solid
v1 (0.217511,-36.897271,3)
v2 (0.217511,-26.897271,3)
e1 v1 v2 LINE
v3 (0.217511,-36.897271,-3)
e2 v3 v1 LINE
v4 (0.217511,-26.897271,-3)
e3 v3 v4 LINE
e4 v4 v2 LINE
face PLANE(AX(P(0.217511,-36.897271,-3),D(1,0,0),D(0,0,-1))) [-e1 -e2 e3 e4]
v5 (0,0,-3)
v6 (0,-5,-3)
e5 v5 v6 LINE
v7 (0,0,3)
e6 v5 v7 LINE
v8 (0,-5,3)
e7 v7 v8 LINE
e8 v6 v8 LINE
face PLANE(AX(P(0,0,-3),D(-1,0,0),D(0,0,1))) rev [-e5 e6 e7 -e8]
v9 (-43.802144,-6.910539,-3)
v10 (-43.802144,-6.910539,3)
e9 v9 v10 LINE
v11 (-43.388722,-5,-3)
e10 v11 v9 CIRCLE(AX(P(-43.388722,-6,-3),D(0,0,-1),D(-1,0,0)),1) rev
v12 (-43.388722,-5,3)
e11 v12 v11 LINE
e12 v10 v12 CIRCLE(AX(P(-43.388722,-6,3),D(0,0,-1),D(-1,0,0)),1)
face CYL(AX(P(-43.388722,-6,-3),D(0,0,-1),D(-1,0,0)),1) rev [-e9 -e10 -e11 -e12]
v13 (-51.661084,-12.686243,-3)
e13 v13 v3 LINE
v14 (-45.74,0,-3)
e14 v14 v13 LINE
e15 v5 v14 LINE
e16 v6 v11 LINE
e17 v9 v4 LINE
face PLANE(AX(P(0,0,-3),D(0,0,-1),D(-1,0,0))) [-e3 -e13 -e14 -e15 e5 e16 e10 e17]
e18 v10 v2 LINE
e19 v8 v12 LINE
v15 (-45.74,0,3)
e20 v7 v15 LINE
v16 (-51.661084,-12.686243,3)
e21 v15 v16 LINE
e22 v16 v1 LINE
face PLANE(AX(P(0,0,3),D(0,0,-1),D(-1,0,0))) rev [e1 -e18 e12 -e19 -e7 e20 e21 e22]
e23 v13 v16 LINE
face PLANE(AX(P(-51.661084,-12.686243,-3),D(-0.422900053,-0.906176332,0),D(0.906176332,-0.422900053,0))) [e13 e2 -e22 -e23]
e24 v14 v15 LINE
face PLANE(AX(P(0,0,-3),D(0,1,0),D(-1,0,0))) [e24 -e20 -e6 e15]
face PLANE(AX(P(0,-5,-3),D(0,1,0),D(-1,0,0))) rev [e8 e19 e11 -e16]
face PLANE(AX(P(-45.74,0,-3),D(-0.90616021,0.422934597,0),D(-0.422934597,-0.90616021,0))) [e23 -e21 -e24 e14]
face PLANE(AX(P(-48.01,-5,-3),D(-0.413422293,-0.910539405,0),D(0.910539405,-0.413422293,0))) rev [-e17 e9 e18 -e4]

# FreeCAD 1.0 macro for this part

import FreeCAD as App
import Part
import Sketcher
Q = App.Units.Quantity


def edges_at(feature, points):
    """Names of the edges that pass closest to the given points."""
    edges = feature.Shape.Edges
    near = lambda p: min(range(len(edges)), key=lambda i: edges[i].distToShape(Part.Vertex(*p))[0])
    return sorted({f"Edge{near(p) + 1}" for p in points})


def add_polygon(sketch, points):
    """Adds a closed chain of lines whose ends are joined by coincident constraints."""
    first, n = sketch.GeometryCount, len(points)
    for a, b in zip(points, points[1:] + points[:1]):
        sketch.addGeometry(Part.LineSegment(App.Vector(*a, 0), App.Vector(*b, 0)), False)
    for i in range(n):
        sketch.addConstraint(Sketcher.Constraint("Coincident", first + i, 2, first + (i + 1) % n, 1))

doc = App.newDocument("Part")
params = doc.addObject("Spreadsheet::Sheet", "Params")
for row, (alias, value) in enumerate([
    ("sketch1_height", "5 mm"),
    ("sketch1_height2", "10 mm"),
    ("sketch1_length", "14 mm"),
    ("sketch1_width", "45.74 mm"),
    ("sketch1_width2", "48.01 mm"),
    ("pad1_length", "3 mm"),
    ("pad1_length2", "3 mm"),
    ("fillet_radius", "1 mm"),
], start=1):
    params.set(f"A{row}", alias)
    params.set(f"B{row}", "=" + value)
    params.setAlias(f"B{row}", alias)

body = doc.addObject("PartDesign::Body", "Body")

sketch1 = doc.addObject("Sketcher::SketchObject", "Sketch")
body.addObject(sketch1)
sketch1.AttachmentSupport = (doc.XY_Plane, [""])
sketch1.MapMode = "FlatFace"
add_polygon(sketch1, [(0, -5), (0, 0), (-45.74, 0), (-51.661084, -12.686243), (0.217511, -36.897271), (0.217511, -26.897271), (-48.01, -5)])
sketch1.addConstraint([
    Sketcher.Constraint("Vertical", 0),
    Sketcher.Constraint("Horizontal", 1),
    Sketcher.Constraint("Vertical", 4),
    Sketcher.Constraint("Horizontal", 6),
    Sketcher.Constraint("Coincident", 0, 2, -1, 1),
    Sketcher.Constraint("DistanceY", 0, 1, 0, 2, 5.0),
    Sketcher.Constraint("DistanceY", 4, 1, 4, 2, 10.0),
    Sketcher.Constraint("Distance", 2, 14.0),
    Sketcher.Constraint("DistanceX", 1, 2, 1, 1, 45.74),
    Sketcher.Constraint("DistanceX", 6, 1, 6, 2, 48.01),
    Sketcher.Constraint("Angle", 2, Q("-115.02 deg")),
    Sketcher.Constraint("Angle", 5, Q("155.58 deg")),
    Sketcher.Constraint("Distance", 3, 57.25),
])
sketch1.setExpression("Constraints[12]", "Params.sketch1_height")
sketch1.setExpression("Constraints[13]", "Params.sketch1_height2")
sketch1.setExpression("Constraints[14]", "Params.sketch1_length")
sketch1.setExpression("Constraints[15]", "Params.sketch1_width")
sketch1.setExpression("Constraints[16]", "Params.sketch1_width2")
pad1 = doc.addObject("PartDesign::Pad", "Pad")
body.addObject(pad1)
pad1.Profile = sketch1
pad1.Type = "TwoLengths"
pad1.setExpression("Length", "Params.pad1_length")
pad1.setExpression("Length2", "Params.pad1_length2")
doc.recompute()

fillet = doc.addObject("PartDesign::Fillet", "Fillet")
body.addObject(fillet)
fillet.Base = (pad1, edges_at(pad1, [(-48.01, -5, 0)]))
fillet.setExpression("Radius", "Params.fillet_radius")

doc.recompute()
